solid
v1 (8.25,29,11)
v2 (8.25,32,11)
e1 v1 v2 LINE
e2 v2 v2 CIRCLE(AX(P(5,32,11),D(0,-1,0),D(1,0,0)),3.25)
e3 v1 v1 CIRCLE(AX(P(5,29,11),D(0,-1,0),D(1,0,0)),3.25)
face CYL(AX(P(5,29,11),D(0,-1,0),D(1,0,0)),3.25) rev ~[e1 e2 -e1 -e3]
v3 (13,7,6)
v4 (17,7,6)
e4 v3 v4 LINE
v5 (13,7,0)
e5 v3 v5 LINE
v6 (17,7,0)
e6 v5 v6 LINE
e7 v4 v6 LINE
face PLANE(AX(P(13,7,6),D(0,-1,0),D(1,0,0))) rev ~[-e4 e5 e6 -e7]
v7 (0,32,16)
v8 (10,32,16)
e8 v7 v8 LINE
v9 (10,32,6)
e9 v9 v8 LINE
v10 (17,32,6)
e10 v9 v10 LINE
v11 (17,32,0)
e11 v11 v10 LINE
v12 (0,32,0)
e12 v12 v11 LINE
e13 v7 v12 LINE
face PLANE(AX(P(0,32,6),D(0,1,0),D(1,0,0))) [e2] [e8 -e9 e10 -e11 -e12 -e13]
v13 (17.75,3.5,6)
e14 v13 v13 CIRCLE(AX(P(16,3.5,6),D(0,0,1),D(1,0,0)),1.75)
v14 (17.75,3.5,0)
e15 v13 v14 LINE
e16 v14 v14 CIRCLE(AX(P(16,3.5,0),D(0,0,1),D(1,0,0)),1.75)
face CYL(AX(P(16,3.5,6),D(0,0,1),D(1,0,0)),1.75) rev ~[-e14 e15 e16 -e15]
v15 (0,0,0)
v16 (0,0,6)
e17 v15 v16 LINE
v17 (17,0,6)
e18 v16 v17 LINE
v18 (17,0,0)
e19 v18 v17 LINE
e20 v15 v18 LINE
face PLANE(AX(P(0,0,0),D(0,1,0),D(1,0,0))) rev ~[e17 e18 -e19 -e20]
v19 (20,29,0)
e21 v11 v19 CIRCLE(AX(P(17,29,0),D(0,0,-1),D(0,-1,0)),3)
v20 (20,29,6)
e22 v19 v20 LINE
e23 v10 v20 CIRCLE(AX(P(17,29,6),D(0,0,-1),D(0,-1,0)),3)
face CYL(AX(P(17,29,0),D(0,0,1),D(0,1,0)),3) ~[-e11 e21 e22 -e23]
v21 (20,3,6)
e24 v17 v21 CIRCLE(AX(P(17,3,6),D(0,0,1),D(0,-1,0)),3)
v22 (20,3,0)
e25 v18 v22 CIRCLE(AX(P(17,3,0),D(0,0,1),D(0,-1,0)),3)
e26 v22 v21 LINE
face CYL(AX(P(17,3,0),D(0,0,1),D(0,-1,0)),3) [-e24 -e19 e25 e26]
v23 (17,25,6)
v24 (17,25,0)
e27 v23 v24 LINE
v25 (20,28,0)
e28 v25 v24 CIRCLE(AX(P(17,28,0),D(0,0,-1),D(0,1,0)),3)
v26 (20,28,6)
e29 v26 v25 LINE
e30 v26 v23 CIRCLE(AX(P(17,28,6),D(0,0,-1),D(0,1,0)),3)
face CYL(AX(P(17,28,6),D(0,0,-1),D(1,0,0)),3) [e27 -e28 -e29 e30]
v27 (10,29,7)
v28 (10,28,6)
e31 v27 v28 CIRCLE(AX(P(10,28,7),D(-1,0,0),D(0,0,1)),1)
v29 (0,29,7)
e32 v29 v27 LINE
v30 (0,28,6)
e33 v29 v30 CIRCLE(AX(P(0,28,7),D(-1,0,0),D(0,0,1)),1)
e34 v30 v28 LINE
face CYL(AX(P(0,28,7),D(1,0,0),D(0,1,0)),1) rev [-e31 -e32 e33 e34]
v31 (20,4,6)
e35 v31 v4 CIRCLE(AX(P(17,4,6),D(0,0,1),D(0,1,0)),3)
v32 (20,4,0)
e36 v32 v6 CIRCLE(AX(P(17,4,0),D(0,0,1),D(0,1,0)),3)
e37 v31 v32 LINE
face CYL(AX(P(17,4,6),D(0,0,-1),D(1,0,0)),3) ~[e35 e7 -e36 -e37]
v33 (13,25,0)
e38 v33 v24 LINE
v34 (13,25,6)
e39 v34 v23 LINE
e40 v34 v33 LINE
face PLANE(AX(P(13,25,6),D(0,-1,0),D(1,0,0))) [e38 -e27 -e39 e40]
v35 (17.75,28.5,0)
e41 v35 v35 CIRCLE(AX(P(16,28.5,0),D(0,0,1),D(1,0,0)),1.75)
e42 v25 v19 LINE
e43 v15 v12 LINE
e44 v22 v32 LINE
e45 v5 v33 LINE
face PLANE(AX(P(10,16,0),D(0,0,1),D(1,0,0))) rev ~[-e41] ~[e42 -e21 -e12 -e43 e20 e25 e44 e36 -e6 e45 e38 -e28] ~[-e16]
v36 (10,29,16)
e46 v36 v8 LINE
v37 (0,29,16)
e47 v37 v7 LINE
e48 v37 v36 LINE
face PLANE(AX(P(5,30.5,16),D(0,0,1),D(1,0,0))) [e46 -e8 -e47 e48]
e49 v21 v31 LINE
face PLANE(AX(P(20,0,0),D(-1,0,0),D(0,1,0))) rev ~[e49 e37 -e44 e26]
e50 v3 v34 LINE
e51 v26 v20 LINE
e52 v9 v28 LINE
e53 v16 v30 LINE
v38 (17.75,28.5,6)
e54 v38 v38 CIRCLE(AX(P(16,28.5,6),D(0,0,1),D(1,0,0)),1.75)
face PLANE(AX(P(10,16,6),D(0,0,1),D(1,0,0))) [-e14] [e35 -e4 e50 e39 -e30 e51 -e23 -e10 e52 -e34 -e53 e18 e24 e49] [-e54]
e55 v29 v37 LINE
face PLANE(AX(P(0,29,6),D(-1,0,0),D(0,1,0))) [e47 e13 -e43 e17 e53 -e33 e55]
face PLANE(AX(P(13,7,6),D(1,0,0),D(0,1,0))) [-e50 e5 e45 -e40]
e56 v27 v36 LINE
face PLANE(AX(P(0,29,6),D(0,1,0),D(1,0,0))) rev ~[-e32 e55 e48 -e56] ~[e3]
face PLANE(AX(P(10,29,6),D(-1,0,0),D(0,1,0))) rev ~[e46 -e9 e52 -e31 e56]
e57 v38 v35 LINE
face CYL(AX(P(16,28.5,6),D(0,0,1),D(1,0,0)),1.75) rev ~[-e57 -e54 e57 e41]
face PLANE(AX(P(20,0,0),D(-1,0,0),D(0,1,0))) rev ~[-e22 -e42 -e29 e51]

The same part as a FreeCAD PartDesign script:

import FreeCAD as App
import Part
import Sketcher
Q = App.Units.Quantity


def edges_at(feature, points):
    """Names of the edges that pass closest to the given points."""
    edges = feature.Shape.Edges
    near = lambda p: min(range(len(edges)), key=lambda i: edges[i].distToShape(Part.Vertex(*p))[0])
    return sorted({f"Edge{near(p) + 1}" for p in points})

doc = App.newDocument("Part")
body = doc.addObject("PartDesign::Body", "Body")

sketch1 = doc.addObject("Sketcher::SketchObject", "Sketch")
body.addObject(sketch1)
sketch1.AttachmentSupport = (doc.XY_Plane, [""])
sketch1.MapMode = "FlatFace"
sketch1.addGeometry([
    Part.LineSegment(App.Vector(0, 32, 0), App.Vector(0, 0, 0)),
    Part.LineSegment(App.Vector(0, 0, 0), App.Vector(20, 0, 0)),
    Part.LineSegment(App.Vector(20, 0, 0), App.Vector(20, 32, 0)),
    Part.LineSegment(App.Vector(20, 32, 0), App.Vector(0, 32, 0)),
], False)
sketch1.addConstraint([
    Sketcher.Constraint("Coincident", 0, 2, 1, 1),
    Sketcher.Constraint("Coincident", 1, 2, 2, 1),
    Sketcher.Constraint("Coincident", 2, 2, 3, 1),
    Sketcher.Constraint("Coincident", 3, 2, 0, 1),
    Sketcher.Constraint("Vertical", 0),
    Sketcher.Constraint("Horizontal", 1),
    Sketcher.Constraint("Vertical", 2),
    Sketcher.Constraint("Horizontal", 3),
    Sketcher.Constraint("Coincident", 0, 2, -1, 1),
    Sketcher.Constraint("DistanceX", 1, 1, 1, 2, Q("20 mm")),
    Sketcher.Constraint("DistanceY", 0, 2, 0, 1, Q("32 mm")),
])
pad1 = doc.addObject("PartDesign::Pad", "Pad")
body.addObject(pad1)
pad1.Profile = sketch1
pad1.Length = 6

sketch2 = doc.addObject("Sketcher::SketchObject", "Sketch001")
body.addObject(sketch2)
sketch2.AttachmentSupport = (doc.XY_Plane, [""])
sketch2.MapMode = "FlatFace"
sketch2.AttachmentOffset = App.Placement(App.Vector(0, 0, 6), App.Rotation())
sketch2.addGeometry([
    Part.Circle(App.Vector(16, 28.5, 0), App.Vector(0, 0, 1), 1.8),
    Part.Circle(App.Vector(16, 3.5, 0), App.Vector(0, 0, 1), 1.8),
], False)
sketch2.addConstraint([
    Sketcher.Constraint("Equal", 0, 1),
    Sketcher.Constraint("Vertical", 0, 3, 1, 3),
    Sketcher.Constraint("Diameter", 0, Q("3.5 mm")),
    Sketcher.Constraint("DistanceX", -1, 1, 0, 3, Q("16 mm")),
    Sketcher.Constraint("DistanceY", 1, 3, 0, 3, Q("25 mm")),
    Sketcher.Constraint("DistanceY", -1, 1, 0, 3, Q("28.5 mm")),
])
pocket1 = doc.addObject("PartDesign::Pocket", "Pocket")
body.addObject(pocket1)
pocket1.Profile = sketch2
pocket1.Type = "ThroughAll"

sketch3 = doc.addObject("Sketcher::SketchObject", "Sketch002")
body.addObject(sketch3)
sketch3.AttachmentSupport = (doc.XY_Plane, [""])
sketch3.MapMode = "FlatFace"
sketch3.AttachmentOffset = App.Placement(App.Vector(0, 0, 6), App.Rotation())
sketch3.addGeometry([
    Part.LineSegment(App.Vector(13, 25, 0), App.Vector(13, 7, 0)),
    Part.LineSegment(App.Vector(13, 7, 0), App.Vector(20, 7, 0)),
    Part.LineSegment(App.Vector(20, 7, 0), App.Vector(20, 25, 0)),
    Part.LineSegment(App.Vector(20, 25, 0), App.Vector(13, 25, 0)),
], False)
sketch3.addConstraint([
    Sketcher.Constraint("Coincident", 0, 2, 1, 1),
    Sketcher.Constraint("Coincident", 1, 2, 2, 1),
    Sketcher.Constraint("Coincident", 2, 2, 3, 1),
    Sketcher.Constraint("Coincident", 3, 2, 0, 1),
    Sketcher.Constraint("Vertical", 0),
    Sketcher.Constraint("Horizontal", 1),
    Sketcher.Constraint("Vertical", 2),
    Sketcher.Constraint("Horizontal", 3),
    Sketcher.Constraint("DistanceX", 1, 1, 1, 2, Q("7 mm")),
    Sketcher.Constraint("DistanceY", 0, 2, 0, 1, Q("18 mm")),
    Sketcher.Constraint("DistanceX", -1, 1, 0, 2, Q("13 mm")),
    Sketcher.Constraint("DistanceY", -1, 1, 0, 2, Q("7 mm")),
])
pocket2 = doc.addObject("PartDesign::Pocket", "Pocket001")
body.addObject(pocket2)
pocket2.Profile = sketch3
pocket2.Type = "ThroughAll"
doc.recompute()

fillet = doc.addObject("PartDesign::Fillet", "Fillet")
body.addObject(fillet)
fillet.Base = (pocket2, edges_at(pocket2, [
    (20, 32, 3),
    (20, 25, 3),
    (20, 7, 3),
    (20, 0, 3),
]))
fillet.Radius = 3

sketch4 = doc.addObject("Sketcher::SketchObject", "Sketch003")
body.addObject(sketch4)
sketch4.AttachmentSupport = (doc.XY_Plane, [""])
sketch4.MapMode = "FlatFace"
sketch4.AttachmentOffset = App.Placement(App.Vector(0, 0, 6), App.Rotation())
sketch4.addGeometry([
    Part.LineSegment(App.Vector(0, 32, 0), App.Vector(0, 29, 0)),
    Part.LineSegment(App.Vector(0, 29, 0), App.Vector(10, 29, 0)),
    Part.LineSegment(App.Vector(10, 29, 0), App.Vector(10, 32, 0)),
    Part.LineSegment(App.Vector(10, 32, 0), App.Vector(0, 32, 0)),
], False)
sketch4.addConstraint([
    Sketcher.Constraint("Coincident", 0, 2, 1, 1),
    Sketcher.Constraint("Coincident", 1, 2, 2, 1),
    Sketcher.Constraint("Coincident", 2, 2, 3, 1),
    Sketcher.Constraint("Coincident", 3, 2, 0, 1),
    Sketcher.Constraint("Vertical", 0),
    Sketcher.Constraint("Horizontal", 1),
    Sketcher.Constraint("Vertical", 2),
    Sketcher.Constraint("Horizontal", 3),
    Sketcher.Constraint("PointOnObject", 0, 2, -2),
    Sketcher.Constraint("DistanceX", 1, 1, 1, 2, Q("10 mm")),
    Sketcher.Constraint("DistanceY", 0, 2, 0, 1, Q("3 mm")),
    Sketcher.Constraint("DistanceY", -1, 1, 0, 2, Q("29 mm")),
])
pad2 = doc.addObject("PartDesign::Pad", "Pad001")
body.addObject(pad2)
pad2.Profile = sketch4
pad2.Length = 10

sketch5 = doc.addObject("Sketcher::SketchObject", "Sketch004")
body.addObject(sketch5)
sketch5.AttachmentSupport = (doc.XZ_Plane, [""])
sketch5.MapMode = "FlatFace"
sketch5.AttachmentOffset = App.Placement(App.Vector(0, 0, -29), App.Rotation())
sketch5.addGeometry(Part.Circle(App.Vector(5, 11, 0), App.Vector(0, 0, 1), 3.2), False)
sketch5.addConstraint([
    Sketcher.Constraint("Diameter", 0, Q("6.5 mm")),
    Sketcher.Constraint("DistanceX", -1, 1, 0, 3, Q("5 mm")),
    Sketcher.Constraint("DistanceY", -1, 1, 0, 3, Q("11 mm")),
])
pocket3 = doc.addObject("PartDesign::Pocket", "Pocket002")
body.addObject(pocket3)
pocket3.Profile = sketch5
pocket3.Type = "ThroughAll"
doc.recompute()

fillet2 = doc.addObject("PartDesign::Fillet", "Fillet001")
body.addObject(fillet2)
fillet2.Base = (pocket3, edges_at(pocket3, [(5, 29, 6)]))
fillet2.Radius = 1

doc.recompute()
